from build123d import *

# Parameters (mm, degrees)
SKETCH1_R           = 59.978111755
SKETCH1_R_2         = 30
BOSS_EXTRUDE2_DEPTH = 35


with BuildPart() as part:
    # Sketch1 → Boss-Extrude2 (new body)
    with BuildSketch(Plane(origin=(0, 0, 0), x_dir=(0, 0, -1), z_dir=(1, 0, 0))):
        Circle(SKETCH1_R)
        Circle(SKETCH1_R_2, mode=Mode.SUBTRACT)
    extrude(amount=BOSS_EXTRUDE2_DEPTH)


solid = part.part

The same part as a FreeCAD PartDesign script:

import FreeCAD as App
import Part
import Sketcher

V = App.Vector
Q = App.Units.Quantity

doc = App.newDocument("Part")
body = doc.addObject("PartDesign::Body", "Body")

# Sketch on YZ plane
sketch1 = body.newObject("Sketcher::SketchObject", "Sketch")
sketch1.AttachmentSupport = (doc.getObject("YZ_Plane"), [""])
sketch1.MapMode = "FlatFace"
sketch1.addGeometry([
    Part.Circle(V(0, 0, 0), V(0, 0, 1), 60),
    Part.Circle(V(0, 0, 0), V(0, 0, 1), 30),
], False)
sketch1.addConstraint([
    Sketcher.Constraint("Coincident", 0, 3, -1, 1),
    Sketcher.Constraint("Coincident", 1, 3, -1, 1),
    Sketcher.Constraint("Diameter", 1, Q("60 mm")),
    Sketcher.Constraint("Diameter", 0, Q("119.956224 mm")),
])
pad1 = body.newObject("PartDesign::Pad", "Pad")
pad1.Profile = sketch1
pad1.Length = 35

doc.recompute()
